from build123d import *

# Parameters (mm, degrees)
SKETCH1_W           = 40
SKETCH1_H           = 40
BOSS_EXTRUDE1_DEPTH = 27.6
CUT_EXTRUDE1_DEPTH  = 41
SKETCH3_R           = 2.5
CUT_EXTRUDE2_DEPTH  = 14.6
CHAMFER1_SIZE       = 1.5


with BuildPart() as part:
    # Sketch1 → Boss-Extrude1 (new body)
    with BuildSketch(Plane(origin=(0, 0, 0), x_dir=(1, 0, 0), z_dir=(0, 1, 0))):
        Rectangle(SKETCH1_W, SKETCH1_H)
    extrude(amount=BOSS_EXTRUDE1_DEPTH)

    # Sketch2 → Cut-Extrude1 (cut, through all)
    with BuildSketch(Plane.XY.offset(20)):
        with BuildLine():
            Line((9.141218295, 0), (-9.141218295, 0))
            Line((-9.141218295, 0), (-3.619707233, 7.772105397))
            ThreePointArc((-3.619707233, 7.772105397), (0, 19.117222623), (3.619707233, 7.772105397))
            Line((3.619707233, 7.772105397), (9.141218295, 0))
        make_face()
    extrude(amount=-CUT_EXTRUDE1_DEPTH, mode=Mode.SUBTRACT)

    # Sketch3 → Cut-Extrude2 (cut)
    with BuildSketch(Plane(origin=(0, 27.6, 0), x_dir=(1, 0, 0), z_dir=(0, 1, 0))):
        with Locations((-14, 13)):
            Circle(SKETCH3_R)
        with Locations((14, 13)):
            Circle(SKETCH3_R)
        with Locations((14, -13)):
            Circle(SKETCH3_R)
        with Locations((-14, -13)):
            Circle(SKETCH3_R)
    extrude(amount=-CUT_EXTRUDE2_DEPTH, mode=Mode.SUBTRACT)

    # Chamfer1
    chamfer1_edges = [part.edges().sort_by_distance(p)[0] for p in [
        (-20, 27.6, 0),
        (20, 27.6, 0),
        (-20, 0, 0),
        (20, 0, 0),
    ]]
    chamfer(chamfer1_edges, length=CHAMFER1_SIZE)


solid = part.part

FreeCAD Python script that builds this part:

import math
import FreeCAD as App
import Part
import Sketcher

V = App.Vector


def edges_at(feature, points):
    """Names of the edges that pass closest to the given points."""
    edges = feature.Shape.Edges
    near = lambda p: min(range(len(edges)), key=lambda i: edges[i].distToShape(Part.Vertex(*p))[0])
    return sorted({f"Edge{near(p) + 1}" for p in points})


def add_polygon(sketch, points):
    """Adds a closed chain of lines whose ends are joined by coincident constraints."""
    first, n = sketch.GeometryCount, len(points)
    for a, b in zip(points, points[1:] + points[:1]):
        sketch.addGeometry(Part.LineSegment(App.Vector(*a, 0), App.Vector(*b, 0)), False)
    for i in range(n):
        sketch.addConstraint(Sketcher.Constraint("Coincident", first + i, 2, first + (i + 1) % n, 1))

doc = App.newDocument("Part")
body = doc.addObject("PartDesign::Body", "Body")

# Sketch on XZ plane
sketch1 = doc.addObject("Sketcher::SketchObject", "Sketch")
body.addObject(sketch1)
sketch1.AttachmentSupport = (doc.XZ_Plane, [""])
sketch1.MapMode = "FlatFace"
add_polygon(sketch1, [(-20, -20), (-20, 20), (20, 20), (20, -20)])  # lines 0-3
sketch1.addConstraint(Sketcher.Constraint("Vertical", 0))
sketch1.addConstraint(Sketcher.Constraint("Horizontal", 1))
sketch1.addConstraint(Sketcher.Constraint("Vertical", 2))
sketch1.addConstraint(Sketcher.Constraint("Horizontal", 3))
sketch1.addConstraint(Sketcher.Constraint("Symmetric", 0, 2, 2, 2, -1, 1))
sketch1.addConstraint(Sketcher.Constraint("Equal", 3, 0))
sketch1.addConstraint(Sketcher.Constraint("DistanceX", 1, 1, 1, 2, 40.0))
pad1 = doc.addObject("PartDesign::Pad", "Pad")
body.addObject(pad1)
pad1.Profile = sketch1
pad1.Length = 27.6
pad1.Reversed = True

# Sketch on XY plane
sketch2 = doc.addObject("Sketcher::SketchObject", "Sketch001")
body.addObject(sketch2)
sketch2.AttachmentSupport = (doc.XY_Plane, [""])
sketch2.MapMode = "FlatFace"
sketch2.AttachmentOffset = App.Placement(V(0, 0, 20), App.Rotation())
sketch2.addGeometry(Part.LineSegment(V(-9, 0, 0), V(9, 0, 0)), False)
sketch2.addGeometry(Part.LineSegment(V(9, 0, 0), V(4, 8, 0)), False)
sketch2.addGeometry(Part.ArcOfCircle(Part.Circle(V(0, 13, 0), V(0, 0, 1), 6), math.radians(-55), math.radians(235)), False)
sketch2.addGeometry(Part.LineSegment(V(-4, 8, 0), V(-9, 0, 0)), False)
sketch2.addConstraint(Sketcher.Constraint("Coincident", 0, 2, 1, 1))
sketch2.addConstraint(Sketcher.Constraint("Coincident", 1, 2, 2, 1))
sketch2.addConstraint(Sketcher.Constraint("Coincident", 2, 2, 3, 1))
sketch2.addConstraint(Sketcher.Constraint("Coincident", 3, 2, 0, 1))
sketch2.addConstraint(Sketcher.Constraint("Horizontal", 0))
sketch2.addConstraint(Sketcher.Constraint("Symmetric", 0, 2, 3, 2, -1, 1))
sketch2.addConstraint(Sketcher.Constraint("Symmetric", 1, 2, 2, 2, -2))
sketch2.addConstraint(Sketcher.Constraint("Radius", 2, 6.25))
sketch2.addConstraint(Sketcher.Constraint("DistanceX", 0, 1, 0, 2, 18.282437))
sketch2.addConstraint(Sketcher.Constraint("DistanceX", 1, 2, 0, 2, 5.521511))
sketch2.addConstraint(Sketcher.Constraint("Distance", 1, 9.533767))
pocket1 = doc.addObject("PartDesign::Pocket", "Pocket")
body.addObject(pocket1)
pocket1.Profile = sketch2
pocket1.Type = "ThroughAll"

# Sketch on XZ plane
sketch3 = doc.addObject("Sketcher::SketchObject", "Sketch002")
body.addObject(sketch3)
sketch3.AttachmentSupport = (doc.XZ_Plane, [""])
sketch3.MapMode = "FlatFace"
sketch3.AttachmentOffset = App.Placement(V(0, 0, -27.6), App.Rotation())
sketch3.addGeometry(Part.Circle(V(-14, -13, 0), V(0, 0, 1), 2.5), False)
sketch3.addGeometry(Part.Circle(V(14, -13, 0), V(0, 0, 1), 2.5), False)
sketch3.addGeometry(Part.Circle(V(14, 13, 0), V(0, 0, 1), 2.5), False)
sketch3.addGeometry(Part.Circle(V(-14, 13, 0), V(0, 0, 1), 2.5), False)
sketch3.addConstraint(Sketcher.Constraint("Equal", 0, 1))
sketch3.addConstraint(Sketcher.Constraint("Equal", 1, 2))
sketch3.addConstraint(Sketcher.Constraint("Equal", 2, 3))
sketch3.addConstraint(Sketcher.Constraint("Symmetric", 0, 3, 2, 3, -1, 1))
sketch3.addConstraint(Sketcher.Constraint("Symmetric", 1, 3, 3, 3, -1, 1))
sketch3.addConstraint(Sketcher.Constraint("Symmetric", 0, 3, 1, 3, -2))
sketch3.addConstraint(Sketcher.Constraint("Diameter", 0, 5.0))
sketch3.addConstraint(Sketcher.Constraint("DistanceX", 0, 3, -1, 1, 14.0))
sketch3.addConstraint(Sketcher.Constraint("DistanceY", 0, 3, -1, 1, 13.0))
pocket2 = doc.addObject("PartDesign::Pocket", "Pocket001")
body.addObject(pocket2)
pocket2.Profile = sketch3
pocket2.Length = 14.6
pocket2.Reversed = True
doc.recompute()

chamfer = doc.addObject("PartDesign::Chamfer", "Chamfer")
body.addObject(chamfer)
chamfer.Base = (pocket2, edges_at(pocket2, [
    (-20, 27.6, 0),
    (20, 27.6, 0),
    (-20, 0, 0),
    (20, 0, 0),
]))
chamfer.Size = 1.5

doc.recompute()
